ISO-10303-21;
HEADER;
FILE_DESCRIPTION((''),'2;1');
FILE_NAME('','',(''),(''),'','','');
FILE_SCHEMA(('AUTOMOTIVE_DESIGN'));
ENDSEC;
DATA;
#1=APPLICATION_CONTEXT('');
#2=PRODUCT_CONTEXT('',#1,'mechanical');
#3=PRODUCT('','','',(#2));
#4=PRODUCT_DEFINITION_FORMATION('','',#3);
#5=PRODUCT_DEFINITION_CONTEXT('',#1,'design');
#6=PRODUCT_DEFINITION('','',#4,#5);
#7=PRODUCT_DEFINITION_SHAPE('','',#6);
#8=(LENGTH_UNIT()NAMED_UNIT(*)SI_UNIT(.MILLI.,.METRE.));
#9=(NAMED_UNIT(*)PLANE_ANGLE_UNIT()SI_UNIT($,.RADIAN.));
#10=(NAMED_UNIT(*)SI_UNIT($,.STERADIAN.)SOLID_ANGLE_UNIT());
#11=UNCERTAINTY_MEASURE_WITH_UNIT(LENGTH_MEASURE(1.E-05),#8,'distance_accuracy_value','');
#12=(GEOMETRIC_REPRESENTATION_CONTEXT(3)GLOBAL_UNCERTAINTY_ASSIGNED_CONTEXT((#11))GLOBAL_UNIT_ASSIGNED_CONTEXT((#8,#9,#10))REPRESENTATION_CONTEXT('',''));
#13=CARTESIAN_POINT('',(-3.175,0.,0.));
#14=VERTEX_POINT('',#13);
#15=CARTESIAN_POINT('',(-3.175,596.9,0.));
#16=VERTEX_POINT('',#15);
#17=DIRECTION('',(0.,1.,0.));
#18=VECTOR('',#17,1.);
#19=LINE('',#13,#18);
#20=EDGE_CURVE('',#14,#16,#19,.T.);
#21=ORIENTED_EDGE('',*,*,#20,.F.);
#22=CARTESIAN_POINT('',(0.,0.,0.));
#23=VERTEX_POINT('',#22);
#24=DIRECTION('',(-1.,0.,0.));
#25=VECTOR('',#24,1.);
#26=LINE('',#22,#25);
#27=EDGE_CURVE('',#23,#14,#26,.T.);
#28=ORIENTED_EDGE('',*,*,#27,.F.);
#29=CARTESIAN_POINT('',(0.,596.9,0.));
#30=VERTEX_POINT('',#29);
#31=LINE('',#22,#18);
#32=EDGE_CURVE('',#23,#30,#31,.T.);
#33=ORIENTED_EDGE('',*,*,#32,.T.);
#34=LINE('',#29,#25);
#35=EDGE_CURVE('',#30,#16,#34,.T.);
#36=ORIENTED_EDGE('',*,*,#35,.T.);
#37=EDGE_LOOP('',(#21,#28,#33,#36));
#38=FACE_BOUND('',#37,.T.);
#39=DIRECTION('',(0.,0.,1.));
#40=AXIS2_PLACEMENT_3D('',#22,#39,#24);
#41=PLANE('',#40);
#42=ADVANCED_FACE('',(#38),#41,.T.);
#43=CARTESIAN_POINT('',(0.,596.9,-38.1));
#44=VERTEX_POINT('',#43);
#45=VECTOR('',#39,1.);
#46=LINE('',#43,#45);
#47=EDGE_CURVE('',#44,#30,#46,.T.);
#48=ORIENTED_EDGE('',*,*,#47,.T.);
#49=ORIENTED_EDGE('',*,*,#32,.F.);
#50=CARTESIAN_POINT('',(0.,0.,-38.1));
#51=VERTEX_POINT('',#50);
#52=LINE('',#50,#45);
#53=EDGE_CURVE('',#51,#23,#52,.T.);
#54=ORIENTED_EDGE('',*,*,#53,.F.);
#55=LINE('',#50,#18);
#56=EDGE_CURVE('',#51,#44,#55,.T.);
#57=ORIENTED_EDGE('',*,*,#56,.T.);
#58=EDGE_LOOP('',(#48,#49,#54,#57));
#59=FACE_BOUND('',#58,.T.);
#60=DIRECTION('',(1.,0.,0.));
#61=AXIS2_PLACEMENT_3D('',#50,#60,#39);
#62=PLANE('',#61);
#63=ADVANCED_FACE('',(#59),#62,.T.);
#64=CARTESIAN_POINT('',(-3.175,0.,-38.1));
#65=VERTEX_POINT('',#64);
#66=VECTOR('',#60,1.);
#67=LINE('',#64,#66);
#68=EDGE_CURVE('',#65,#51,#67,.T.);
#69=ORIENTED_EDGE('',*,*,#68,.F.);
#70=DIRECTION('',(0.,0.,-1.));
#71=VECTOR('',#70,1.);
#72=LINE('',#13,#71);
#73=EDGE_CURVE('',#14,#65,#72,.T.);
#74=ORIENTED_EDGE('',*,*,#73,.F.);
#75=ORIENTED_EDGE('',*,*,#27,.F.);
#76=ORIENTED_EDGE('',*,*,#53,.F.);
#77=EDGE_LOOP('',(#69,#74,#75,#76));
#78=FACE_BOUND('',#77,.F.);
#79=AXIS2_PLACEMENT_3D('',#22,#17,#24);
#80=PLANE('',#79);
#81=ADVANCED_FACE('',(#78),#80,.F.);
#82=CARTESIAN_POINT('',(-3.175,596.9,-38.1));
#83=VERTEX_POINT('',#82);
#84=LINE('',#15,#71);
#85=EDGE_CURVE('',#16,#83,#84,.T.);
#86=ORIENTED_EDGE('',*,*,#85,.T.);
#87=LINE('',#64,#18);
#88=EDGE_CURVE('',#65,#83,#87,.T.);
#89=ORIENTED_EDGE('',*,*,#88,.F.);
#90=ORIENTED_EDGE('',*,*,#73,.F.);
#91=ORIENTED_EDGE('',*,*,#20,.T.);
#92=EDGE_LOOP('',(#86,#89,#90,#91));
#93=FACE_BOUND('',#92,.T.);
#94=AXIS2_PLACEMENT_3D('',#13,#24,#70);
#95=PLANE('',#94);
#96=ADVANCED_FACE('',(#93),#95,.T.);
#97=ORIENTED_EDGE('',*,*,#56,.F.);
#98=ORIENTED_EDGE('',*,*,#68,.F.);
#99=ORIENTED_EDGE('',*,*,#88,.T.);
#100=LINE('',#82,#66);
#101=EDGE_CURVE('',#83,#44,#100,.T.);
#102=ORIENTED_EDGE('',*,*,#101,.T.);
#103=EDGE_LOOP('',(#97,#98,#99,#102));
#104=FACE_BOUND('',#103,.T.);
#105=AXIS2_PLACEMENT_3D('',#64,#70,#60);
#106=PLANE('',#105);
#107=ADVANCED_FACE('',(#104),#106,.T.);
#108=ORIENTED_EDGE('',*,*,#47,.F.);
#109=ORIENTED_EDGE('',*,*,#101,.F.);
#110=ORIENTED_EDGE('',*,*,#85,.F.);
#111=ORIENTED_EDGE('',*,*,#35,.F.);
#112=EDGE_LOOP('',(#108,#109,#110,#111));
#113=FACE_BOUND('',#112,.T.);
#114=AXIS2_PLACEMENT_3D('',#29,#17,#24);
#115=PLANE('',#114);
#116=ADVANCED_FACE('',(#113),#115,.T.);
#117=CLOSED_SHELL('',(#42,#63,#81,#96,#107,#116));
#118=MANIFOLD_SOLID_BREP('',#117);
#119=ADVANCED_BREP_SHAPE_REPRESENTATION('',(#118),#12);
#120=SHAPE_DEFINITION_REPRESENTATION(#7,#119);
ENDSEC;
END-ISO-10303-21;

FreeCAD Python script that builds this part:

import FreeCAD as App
import Part
import Sketcher
from FreeCAD import Vector
Q = App.Units.Quantity

doc = App.newDocument("Part")
body = doc.addObject("PartDesign::Body", "Body")

sketch1 = body.newObject("Sketcher::SketchObject", "Sketch")
sketch1.AttachmentSupport = (doc.getObject("XZ_Plane"), [""])
sketch1.MapMode = "FlatFace"
sketch1.addGeometry([
    Part.LineSegment(Vector(-3.2, 0, 0), Vector(0, 0, 0)),
    Part.LineSegment(Vector(0, 0, 0), Vector(0, -38.1, 0)),
    Part.LineSegment(Vector(0, -38.1, 0), Vector(-3.2, -38.1, 0)),
    Part.LineSegment(Vector(-3.2, -38.1, 0), Vector(-3.2, 0, 0)),
], False)
sketch1.addConstraint([
    Sketcher.Constraint("Coincident", 0, 2, 1, 1),
    Sketcher.Constraint("Coincident", 1, 2, 2, 1),
    Sketcher.Constraint("Coincident", 2, 2, 3, 1),
    Sketcher.Constraint("Coincident", 3, 2, 0, 1),
    Sketcher.Constraint("Horizontal", 0),
    Sketcher.Constraint("Vertical", 1),
    Sketcher.Constraint("Horizontal", 2),
    Sketcher.Constraint("Vertical", 3),
    Sketcher.Constraint("Coincident", 0, 2, -1, 1),
    Sketcher.Constraint("DistanceY", 1, 2, 1, 1, Q("1.5 in")),
    Sketcher.Constraint("DistanceX", 0, 1, 0, 2, Q("0.125 in")),
])
pad1 = body.newObject("PartDesign::Pad", "Pad")
pad1.Profile = sketch1
pad1.Length = Q("23.5 in")
pad1.Reversed = True

doc.recompute()
